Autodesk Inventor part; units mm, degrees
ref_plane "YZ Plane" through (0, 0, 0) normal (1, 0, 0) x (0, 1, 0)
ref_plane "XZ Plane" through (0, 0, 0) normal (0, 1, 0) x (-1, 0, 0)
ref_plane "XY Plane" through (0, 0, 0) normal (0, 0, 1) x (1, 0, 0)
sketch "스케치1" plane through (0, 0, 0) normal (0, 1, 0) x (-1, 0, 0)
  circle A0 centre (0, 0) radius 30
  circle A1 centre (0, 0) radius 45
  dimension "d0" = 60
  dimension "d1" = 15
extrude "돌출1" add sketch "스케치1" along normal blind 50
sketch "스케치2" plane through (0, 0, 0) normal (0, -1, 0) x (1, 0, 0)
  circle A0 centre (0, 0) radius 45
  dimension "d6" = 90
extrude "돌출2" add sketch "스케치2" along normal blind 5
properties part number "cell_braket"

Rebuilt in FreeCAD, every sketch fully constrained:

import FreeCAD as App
import Part
import Sketcher

V = App.Vector
Q = App.Units.Quantity

doc = App.newDocument("Part")
body = doc.addObject("PartDesign::Body", "Body")

# Sketch on XZ plane
sketch1 = body.newObject("Sketcher::SketchObject", "Sketch")
sketch1.AttachmentSupport = (doc.getObject("XZ_Plane"), [""])
sketch1.MapMode = "FlatFace"
sketch1.addGeometry(Part.Circle(V(0, 0, 0), V(0, 0, 1), 45), False)
sketch1.addGeometry(Part.Circle(V(0, 0, 0), V(0, 0, 1), 30), False)
sketch1.addConstraint(Sketcher.Constraint("Coincident", 0, 3, -1, 1))
sketch1.addConstraint(Sketcher.Constraint("Coincident", 1, 3, -1, 1))
sketch1.addConstraint(Sketcher.Constraint("Diameter", 1, Q("60 mm")))
sketch1.addConstraint(Sketcher.Constraint("Diameter", 0, Q("90 mm")))
pad1 = body.newObject("PartDesign::Pad", "Pad")
pad1.Profile = sketch1
pad1.Length = 50
pad1.Reversed = True

# Sketch on XZ plane
sketch2 = body.newObject("Sketcher::SketchObject", "Sketch001")
sketch2.AttachmentSupport = (doc.getObject("XZ_Plane"), [""])
sketch2.MapMode = "FlatFace"
sketch2.addGeometry(Part.Circle(V(0, 0, 0), V(0, 0, 1), 45), False)
sketch2.addConstraint(Sketcher.Constraint("Coincident", 0, 3, -1, 1))
sketch2.addConstraint(Sketcher.Constraint("Diameter", 0, Q("90 mm")))
pad2 = body.newObject("PartDesign::Pad", "Pad001")
pad2.Profile = sketch2
pad2.Length = 5

doc.recompute()
